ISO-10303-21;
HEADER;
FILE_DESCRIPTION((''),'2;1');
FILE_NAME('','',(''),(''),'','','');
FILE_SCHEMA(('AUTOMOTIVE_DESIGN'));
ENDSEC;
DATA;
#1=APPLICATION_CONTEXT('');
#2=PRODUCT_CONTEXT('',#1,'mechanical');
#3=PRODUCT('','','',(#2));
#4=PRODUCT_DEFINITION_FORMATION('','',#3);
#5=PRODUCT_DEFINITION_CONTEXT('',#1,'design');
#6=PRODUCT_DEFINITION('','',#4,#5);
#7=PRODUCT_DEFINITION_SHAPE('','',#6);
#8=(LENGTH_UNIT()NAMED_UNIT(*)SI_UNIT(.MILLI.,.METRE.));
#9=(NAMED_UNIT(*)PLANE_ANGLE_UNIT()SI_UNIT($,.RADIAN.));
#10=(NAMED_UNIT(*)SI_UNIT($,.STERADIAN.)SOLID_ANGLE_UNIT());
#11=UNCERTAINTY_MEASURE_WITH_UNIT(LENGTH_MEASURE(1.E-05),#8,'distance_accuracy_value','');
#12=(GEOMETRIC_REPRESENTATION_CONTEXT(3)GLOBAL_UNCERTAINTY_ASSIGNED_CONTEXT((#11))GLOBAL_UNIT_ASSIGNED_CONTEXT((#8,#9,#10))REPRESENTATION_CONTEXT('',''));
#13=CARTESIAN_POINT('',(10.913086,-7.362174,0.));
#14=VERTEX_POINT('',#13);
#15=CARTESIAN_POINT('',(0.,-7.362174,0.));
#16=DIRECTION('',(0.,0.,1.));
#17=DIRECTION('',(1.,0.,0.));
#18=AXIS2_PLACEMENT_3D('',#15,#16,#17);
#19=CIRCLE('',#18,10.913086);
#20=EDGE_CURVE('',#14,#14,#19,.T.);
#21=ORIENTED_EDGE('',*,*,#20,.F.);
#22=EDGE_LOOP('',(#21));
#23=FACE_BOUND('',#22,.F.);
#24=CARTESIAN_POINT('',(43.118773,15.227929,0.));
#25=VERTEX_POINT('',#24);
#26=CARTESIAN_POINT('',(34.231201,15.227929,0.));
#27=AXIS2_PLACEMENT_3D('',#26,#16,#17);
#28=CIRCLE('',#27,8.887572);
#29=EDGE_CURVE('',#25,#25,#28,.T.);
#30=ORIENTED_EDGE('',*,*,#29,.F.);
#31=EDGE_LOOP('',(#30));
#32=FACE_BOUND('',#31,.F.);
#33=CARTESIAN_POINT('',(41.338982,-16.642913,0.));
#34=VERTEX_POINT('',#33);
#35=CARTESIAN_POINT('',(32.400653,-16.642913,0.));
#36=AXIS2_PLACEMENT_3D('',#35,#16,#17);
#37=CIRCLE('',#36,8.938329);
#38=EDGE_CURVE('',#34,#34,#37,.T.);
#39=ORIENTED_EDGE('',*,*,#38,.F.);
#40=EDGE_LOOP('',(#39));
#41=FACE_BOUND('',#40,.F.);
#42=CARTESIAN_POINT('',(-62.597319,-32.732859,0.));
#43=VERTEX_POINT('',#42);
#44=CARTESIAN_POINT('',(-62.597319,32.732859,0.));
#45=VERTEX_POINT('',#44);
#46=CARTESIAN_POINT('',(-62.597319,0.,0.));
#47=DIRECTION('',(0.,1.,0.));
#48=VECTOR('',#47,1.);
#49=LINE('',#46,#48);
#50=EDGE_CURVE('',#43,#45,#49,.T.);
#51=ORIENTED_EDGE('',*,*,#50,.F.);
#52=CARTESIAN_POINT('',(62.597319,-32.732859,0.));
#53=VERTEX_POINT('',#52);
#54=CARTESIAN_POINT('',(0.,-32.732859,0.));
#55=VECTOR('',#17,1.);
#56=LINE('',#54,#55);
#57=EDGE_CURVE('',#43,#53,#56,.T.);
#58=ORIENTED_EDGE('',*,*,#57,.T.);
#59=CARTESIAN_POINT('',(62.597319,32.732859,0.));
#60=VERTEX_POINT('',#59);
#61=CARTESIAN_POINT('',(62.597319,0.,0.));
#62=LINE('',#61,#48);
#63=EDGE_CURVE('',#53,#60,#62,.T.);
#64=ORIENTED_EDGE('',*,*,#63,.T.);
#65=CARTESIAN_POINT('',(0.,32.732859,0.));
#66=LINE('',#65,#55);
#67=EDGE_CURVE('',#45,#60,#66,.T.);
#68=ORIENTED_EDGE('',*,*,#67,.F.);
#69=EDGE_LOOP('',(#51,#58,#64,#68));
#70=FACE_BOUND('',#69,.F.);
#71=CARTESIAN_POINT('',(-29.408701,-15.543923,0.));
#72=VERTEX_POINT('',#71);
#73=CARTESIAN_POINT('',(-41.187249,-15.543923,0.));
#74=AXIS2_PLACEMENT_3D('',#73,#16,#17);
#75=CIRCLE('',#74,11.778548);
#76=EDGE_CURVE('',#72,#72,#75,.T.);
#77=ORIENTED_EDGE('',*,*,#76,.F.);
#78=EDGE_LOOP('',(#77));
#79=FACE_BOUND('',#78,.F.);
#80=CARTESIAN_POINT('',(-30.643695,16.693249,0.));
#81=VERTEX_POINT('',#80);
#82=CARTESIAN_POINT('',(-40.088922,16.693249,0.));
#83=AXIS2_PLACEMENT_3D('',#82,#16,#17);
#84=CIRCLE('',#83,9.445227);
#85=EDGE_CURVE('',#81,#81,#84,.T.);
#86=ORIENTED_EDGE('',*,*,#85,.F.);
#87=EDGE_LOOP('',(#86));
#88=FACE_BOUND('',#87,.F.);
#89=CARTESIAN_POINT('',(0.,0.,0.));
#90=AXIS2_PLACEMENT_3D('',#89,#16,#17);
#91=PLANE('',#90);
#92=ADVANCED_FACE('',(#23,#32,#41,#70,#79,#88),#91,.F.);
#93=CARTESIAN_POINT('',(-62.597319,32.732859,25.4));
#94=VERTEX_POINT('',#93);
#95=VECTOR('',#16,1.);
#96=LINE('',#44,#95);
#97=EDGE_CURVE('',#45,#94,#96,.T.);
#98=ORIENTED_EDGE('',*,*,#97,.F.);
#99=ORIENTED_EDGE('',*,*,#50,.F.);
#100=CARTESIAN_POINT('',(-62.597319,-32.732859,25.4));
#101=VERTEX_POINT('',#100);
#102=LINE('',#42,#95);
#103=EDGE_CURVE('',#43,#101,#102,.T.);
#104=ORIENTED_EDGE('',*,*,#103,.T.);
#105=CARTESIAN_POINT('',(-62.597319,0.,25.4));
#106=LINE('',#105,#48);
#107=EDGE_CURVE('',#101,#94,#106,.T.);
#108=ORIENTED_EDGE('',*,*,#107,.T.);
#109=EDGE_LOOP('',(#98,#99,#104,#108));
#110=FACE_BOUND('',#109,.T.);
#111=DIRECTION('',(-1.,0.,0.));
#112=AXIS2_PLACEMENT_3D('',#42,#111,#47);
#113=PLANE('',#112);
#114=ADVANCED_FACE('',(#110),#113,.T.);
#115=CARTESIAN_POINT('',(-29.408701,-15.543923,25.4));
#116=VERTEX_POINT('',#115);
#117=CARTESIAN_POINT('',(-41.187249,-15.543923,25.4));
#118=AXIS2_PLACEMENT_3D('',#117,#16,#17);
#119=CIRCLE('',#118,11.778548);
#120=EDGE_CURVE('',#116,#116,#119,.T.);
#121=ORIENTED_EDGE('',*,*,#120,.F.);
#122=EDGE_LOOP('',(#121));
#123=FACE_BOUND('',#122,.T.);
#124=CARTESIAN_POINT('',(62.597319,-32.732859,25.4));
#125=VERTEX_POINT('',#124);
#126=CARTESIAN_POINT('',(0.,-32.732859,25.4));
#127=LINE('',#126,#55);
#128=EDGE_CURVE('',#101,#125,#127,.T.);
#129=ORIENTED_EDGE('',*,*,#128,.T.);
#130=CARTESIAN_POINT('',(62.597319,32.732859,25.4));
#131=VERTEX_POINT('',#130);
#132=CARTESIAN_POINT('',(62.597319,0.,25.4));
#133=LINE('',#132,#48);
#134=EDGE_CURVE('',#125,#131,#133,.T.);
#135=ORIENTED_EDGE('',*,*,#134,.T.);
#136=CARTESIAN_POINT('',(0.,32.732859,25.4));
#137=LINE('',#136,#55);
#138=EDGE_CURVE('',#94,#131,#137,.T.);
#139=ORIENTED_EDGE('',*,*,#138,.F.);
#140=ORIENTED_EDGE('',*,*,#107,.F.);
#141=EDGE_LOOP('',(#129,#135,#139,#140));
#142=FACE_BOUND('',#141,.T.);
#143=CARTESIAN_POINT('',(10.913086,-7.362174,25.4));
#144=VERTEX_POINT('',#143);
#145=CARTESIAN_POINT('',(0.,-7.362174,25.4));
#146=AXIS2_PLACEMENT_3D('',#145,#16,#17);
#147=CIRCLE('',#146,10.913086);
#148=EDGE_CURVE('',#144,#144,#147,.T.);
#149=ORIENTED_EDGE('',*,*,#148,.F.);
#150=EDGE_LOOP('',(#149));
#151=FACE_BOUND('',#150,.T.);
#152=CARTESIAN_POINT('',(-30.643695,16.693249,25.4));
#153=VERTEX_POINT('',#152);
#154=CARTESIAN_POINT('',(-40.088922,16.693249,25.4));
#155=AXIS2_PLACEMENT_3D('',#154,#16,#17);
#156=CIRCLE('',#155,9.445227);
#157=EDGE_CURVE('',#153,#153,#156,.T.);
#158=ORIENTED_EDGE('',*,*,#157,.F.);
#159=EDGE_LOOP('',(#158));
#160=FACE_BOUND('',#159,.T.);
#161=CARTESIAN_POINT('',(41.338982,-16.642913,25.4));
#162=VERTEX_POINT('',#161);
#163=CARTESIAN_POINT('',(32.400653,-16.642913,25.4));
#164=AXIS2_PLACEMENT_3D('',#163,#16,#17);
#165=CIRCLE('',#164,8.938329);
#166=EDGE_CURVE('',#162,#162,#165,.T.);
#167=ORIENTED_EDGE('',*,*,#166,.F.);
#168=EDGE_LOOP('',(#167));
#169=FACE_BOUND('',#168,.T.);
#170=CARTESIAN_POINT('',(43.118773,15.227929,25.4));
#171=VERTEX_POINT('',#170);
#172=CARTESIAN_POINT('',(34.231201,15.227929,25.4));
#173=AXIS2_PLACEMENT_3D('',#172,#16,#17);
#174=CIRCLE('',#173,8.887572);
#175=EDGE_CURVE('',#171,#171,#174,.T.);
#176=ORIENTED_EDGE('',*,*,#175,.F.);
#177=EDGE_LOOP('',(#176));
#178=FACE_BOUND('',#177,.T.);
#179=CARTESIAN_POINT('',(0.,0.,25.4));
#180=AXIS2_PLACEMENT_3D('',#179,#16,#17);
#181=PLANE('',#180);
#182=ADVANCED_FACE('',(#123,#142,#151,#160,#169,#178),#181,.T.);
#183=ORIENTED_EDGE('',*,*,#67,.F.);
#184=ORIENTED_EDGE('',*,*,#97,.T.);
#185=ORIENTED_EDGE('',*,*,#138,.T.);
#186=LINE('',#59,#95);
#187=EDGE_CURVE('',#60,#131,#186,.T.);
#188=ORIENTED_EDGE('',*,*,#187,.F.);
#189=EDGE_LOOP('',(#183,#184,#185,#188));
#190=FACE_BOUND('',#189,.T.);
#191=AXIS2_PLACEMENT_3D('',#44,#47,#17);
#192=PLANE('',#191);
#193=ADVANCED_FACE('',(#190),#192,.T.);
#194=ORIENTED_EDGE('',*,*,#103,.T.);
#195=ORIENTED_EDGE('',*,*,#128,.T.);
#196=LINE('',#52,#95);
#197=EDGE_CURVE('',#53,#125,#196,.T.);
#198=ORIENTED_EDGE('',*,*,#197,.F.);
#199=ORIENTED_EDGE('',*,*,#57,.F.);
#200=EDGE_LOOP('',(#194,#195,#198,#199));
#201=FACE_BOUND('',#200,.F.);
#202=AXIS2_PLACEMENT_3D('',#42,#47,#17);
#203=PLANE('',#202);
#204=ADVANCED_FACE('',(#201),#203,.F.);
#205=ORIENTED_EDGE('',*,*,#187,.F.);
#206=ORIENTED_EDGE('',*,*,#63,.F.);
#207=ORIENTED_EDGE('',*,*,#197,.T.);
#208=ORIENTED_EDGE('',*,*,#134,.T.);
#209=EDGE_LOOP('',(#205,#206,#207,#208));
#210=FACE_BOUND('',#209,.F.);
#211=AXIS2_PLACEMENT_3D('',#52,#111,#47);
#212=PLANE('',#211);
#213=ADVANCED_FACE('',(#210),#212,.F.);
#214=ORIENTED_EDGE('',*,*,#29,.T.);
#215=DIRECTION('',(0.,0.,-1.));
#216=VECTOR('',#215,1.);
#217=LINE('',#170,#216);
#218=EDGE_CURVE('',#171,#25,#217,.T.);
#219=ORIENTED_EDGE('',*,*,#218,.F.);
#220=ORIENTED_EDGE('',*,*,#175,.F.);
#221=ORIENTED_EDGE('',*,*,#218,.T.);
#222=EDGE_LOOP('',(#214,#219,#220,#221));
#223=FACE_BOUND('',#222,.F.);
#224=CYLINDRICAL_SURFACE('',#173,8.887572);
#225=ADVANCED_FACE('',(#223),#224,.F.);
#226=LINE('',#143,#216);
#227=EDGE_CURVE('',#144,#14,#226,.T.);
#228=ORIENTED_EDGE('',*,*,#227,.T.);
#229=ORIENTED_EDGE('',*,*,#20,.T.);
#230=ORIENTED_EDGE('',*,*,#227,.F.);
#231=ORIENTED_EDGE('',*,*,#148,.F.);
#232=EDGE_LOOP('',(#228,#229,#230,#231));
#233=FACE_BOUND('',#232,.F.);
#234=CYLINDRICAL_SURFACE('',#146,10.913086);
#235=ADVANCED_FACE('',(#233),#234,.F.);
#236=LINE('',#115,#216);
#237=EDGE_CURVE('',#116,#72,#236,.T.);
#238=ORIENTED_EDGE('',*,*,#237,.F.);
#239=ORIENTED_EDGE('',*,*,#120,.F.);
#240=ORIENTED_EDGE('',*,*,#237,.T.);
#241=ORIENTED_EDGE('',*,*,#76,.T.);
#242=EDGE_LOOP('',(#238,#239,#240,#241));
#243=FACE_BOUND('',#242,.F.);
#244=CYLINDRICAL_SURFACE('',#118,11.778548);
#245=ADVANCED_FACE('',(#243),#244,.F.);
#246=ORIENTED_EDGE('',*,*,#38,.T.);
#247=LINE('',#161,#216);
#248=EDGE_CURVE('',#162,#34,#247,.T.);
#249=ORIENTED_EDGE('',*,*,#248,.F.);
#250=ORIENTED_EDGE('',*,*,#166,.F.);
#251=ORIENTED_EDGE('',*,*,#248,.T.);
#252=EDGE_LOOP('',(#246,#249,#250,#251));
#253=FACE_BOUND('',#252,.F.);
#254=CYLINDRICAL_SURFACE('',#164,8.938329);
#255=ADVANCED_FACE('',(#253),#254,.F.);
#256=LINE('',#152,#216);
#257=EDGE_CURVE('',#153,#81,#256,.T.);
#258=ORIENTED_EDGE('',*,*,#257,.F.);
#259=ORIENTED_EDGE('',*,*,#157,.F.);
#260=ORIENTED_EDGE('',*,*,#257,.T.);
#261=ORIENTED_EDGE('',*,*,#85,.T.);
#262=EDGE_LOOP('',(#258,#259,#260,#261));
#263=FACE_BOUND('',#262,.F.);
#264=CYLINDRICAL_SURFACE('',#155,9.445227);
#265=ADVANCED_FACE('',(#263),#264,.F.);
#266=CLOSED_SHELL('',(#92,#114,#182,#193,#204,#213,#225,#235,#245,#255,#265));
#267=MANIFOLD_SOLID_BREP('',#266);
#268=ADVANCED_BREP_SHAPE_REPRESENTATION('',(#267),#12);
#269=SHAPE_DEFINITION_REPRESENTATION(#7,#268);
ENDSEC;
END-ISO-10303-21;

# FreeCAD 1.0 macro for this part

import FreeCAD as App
import Part
import Sketcher
from FreeCAD import Vector
Q = App.Units.Quantity


def add_polygon(sketch, points):
    """Adds a closed chain of lines whose ends are joined by coincident constraints."""
    first, n = sketch.GeometryCount, len(points)
    for a, b in zip(points, points[1:] + points[:1]):
        sketch.addGeometry(Part.LineSegment(App.Vector(*a, 0), App.Vector(*b, 0)), False)
    for i in range(n):
        sketch.addConstraint(Sketcher.Constraint("Coincident", first + i, 2, first + (i + 1) % n, 1))

doc = App.newDocument("Part")
body = doc.addObject("PartDesign::Body", "Body")

# Sketch on XY plane
sketch1 = body.newObject("Sketcher::SketchObject", "Sketch")
sketch1.AttachmentSupport = (doc.getObject("XY_Plane"), [""])
sketch1.MapMode = "FlatFace"
add_polygon(sketch1, [(-63, 33), (-63, -33), (63, -33), (63, 33)])  # lines 0-3
sketch1.addConstraint([
    Sketcher.Constraint("Vertical", 0),
    Sketcher.Constraint("Horizontal", 1),
    Sketcher.Constraint("Vertical", 2),
    Sketcher.Constraint("Horizontal", 3),
    Sketcher.Constraint("Symmetric", 0, 2, 2, 2, -1, 1),
    Sketcher.Constraint("DistanceX", 1, 1, 1, 2, 125.194638),
    Sketcher.Constraint("DistanceY", 0, 2, 0, 1, 65.465718),
])
pad1 = body.newObject("PartDesign::Pad", "Pad")
pad1.Profile = sketch1
pad1.Length = Q("1 in")

# Sketch on XY plane
sketch2 = body.newObject("Sketcher::SketchObject", "Sketch001")
sketch2.AttachmentSupport = (doc.getObject("XY_Plane"), [""])
sketch2.MapMode = "FlatFace"
sketch2.AttachmentOffset = App.Placement(Vector(0, 0, 1 * 25.4), App.Rotation())
sketch2.addGeometry([
    Part.Circle(Vector(34, 15, 0), Vector(0, 0, 1), 9),
    Part.Circle(Vector(-40, 17, 0), Vector(0, 0, 1), 9),
    Part.Circle(Vector(32, -17, 0), Vector(0, 0, 1), 9),
    Part.Circle(Vector(-41, -16, 0), Vector(0, 0, 1), 12),
], False)
sketch2.addConstraint([
    Sketcher.Constraint("Diameter", 0, 17.775144),
    Sketcher.Constraint("Diameter", 1, 18.890454),
    Sketcher.Constraint("Diameter", 2, 17.876658),
    Sketcher.Constraint("Diameter", 3, 23.557096),
    Sketcher.Constraint("DistanceX", -1, 1, 0, 3, 34.231201),
    Sketcher.Constraint("DistanceX", 3, 3, 2, 3, 73.587902),
    Sketcher.Constraint("DistanceY", -1, 1, 0, 3, 15.227929),
    Sketcher.Constraint("DistanceX", 1, 3, -1, 1, 40.088922),
    Sketcher.Constraint("DistanceY", -1, 1, 1, 3, 16.693249),
    Sketcher.Constraint("DistanceX", 3, 3, -1, 1, 41.187249),
    Sketcher.Constraint("DistanceY", 2, 3, 0, 3, 31.870842),
    Sketcher.Constraint("DistanceY", 2, 3, 3, 3, 1.09899),
])
pocket1 = body.newObject("PartDesign::Pocket", "Pocket")
pocket1.Profile = sketch2
pocket1.Length = Q("1 in")

# Sketch on XY plane
sketch3 = body.newObject("Sketcher::SketchObject", "Sketch002")
sketch3.AttachmentSupport = (doc.getObject("XY_Plane"), [""])
sketch3.MapMode = "FlatFace"
sketch3.AttachmentOffset = App.Placement(Vector(0, 0, 1 * 25.4), App.Rotation())
sketch3.addGeometry(Part.Circle(Vector(0, -7, 0), Vector(0, 0, 1), 11), False)
sketch3.addConstraint([
    Sketcher.Constraint("PointOnObject", 0, 3, -2),
    Sketcher.Constraint("Diameter", 0, 21.826172),
    Sketcher.Constraint("DistanceY", 0, 3, -1, 1, 7.362174),
])
pocket2 = body.newObject("PartDesign::Pocket", "Pocket001")
pocket2.Profile = sketch3
pocket2.Length = Q("1 in")
pocket3 = body.newObject("PartDesign::Pocket", "Pocket002")
pocket3.Profile = sketch3
pocket3.Length = Q("1 in")

doc.recompute()
